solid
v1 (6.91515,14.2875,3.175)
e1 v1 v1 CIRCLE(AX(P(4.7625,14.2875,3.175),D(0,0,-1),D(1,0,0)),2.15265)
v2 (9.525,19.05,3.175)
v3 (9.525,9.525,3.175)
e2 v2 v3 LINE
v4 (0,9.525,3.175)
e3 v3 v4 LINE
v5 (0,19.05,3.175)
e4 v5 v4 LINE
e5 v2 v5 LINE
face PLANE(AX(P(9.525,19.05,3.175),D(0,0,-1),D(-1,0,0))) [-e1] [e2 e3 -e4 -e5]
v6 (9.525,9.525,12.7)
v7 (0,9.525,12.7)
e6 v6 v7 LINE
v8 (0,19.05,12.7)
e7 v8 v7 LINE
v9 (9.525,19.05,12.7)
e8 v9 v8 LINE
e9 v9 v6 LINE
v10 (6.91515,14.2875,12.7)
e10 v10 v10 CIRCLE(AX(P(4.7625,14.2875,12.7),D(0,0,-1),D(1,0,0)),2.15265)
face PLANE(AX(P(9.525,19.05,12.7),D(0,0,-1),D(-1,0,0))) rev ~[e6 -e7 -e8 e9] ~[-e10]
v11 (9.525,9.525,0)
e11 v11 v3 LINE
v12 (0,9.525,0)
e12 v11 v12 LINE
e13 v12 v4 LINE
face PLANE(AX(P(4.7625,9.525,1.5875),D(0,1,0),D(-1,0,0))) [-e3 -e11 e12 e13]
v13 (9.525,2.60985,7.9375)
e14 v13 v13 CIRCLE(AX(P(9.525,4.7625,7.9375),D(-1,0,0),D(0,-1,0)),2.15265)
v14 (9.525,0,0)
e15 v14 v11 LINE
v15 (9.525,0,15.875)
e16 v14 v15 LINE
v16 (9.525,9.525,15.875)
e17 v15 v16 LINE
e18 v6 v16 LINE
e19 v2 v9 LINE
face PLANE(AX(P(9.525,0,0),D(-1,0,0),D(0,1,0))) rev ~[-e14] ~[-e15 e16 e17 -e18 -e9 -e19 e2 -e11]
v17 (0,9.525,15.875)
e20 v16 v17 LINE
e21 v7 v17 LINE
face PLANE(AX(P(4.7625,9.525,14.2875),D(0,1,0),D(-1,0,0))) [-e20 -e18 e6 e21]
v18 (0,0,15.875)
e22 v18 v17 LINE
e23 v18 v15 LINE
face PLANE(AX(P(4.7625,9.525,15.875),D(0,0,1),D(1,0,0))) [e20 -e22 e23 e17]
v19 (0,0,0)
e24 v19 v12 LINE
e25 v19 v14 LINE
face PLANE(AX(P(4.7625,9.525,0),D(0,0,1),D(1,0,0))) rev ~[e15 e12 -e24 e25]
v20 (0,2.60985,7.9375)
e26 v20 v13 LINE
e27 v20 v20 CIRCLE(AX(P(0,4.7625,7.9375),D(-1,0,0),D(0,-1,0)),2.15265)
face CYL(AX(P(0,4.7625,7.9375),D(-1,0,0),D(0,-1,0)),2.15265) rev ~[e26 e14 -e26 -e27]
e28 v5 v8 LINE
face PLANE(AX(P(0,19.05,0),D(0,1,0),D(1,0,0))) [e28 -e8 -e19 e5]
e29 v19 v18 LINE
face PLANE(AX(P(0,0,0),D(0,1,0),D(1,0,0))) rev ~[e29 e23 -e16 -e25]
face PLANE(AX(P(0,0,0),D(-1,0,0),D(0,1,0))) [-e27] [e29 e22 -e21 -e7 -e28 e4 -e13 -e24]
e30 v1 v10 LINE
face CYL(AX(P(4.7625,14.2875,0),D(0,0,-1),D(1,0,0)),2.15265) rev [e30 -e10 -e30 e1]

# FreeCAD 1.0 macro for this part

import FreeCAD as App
import Part
import Sketcher
Q = App.Units.Quantity

doc = App.newDocument("Part")
body = doc.addObject("PartDesign::Body", "Body")

sketch1 = body.newObject("Sketcher::SketchObject", "Sketch")
sketch1.AttachmentSupport = (doc.getObject("XY_Plane"), [""])
sketch1.MapMode = "FlatFace"
sketch1.addGeometry([
    Part.LineSegment(App.Vector(0, 19.1, 0), App.Vector(0, 0, 0)),
    Part.LineSegment(App.Vector(0, 0, 0), App.Vector(9.5, 0, 0)),
    Part.LineSegment(App.Vector(9.5, 0, 0), App.Vector(9.5, 19.1, 0)),
    Part.LineSegment(App.Vector(9.5, 19.1, 0), App.Vector(0, 19.1, 0)),
    Part.Circle(App.Vector(4.8, 14.3, 0), App.Vector(0, 0, 1), 2.2),
], False)
sketch1.addConstraint([
    Sketcher.Constraint("Coincident", 0, 2, 1, 1),
    Sketcher.Constraint("Coincident", 1, 2, 2, 1),
    Sketcher.Constraint("Coincident", 2, 2, 3, 1),
    Sketcher.Constraint("Coincident", 3, 2, 0, 1),
    Sketcher.Constraint("Vertical", 0),
    Sketcher.Constraint("Horizontal", 1),
    Sketcher.Constraint("Vertical", 2),
    Sketcher.Constraint("Horizontal", 3),
    Sketcher.Constraint("Coincident", 0, 2, -1, 1),
    Sketcher.Constraint("Diameter", 4, Q("0.1695 in")),
    Sketcher.Constraint("DistanceY", 0, 2, 0, 1, Q("0.75 in")),
    Sketcher.Constraint("DistanceX", 1, 1, 1, 2, Q("0.375 in")),
    Sketcher.Constraint("DistanceX", -1, 1, 4, 3, Q("0.1875 in")),
    Sketcher.Constraint("DistanceY", -1, 1, 4, 3, Q("0.5625 in")),
])
pad1 = body.newObject("PartDesign::Pad", "Pad")
pad1.Profile = sketch1
pad1.Length = Q("0.625 in")

sketch2 = body.newObject("Sketcher::SketchObject", "Sketch001")
sketch2.AttachmentSupport = (doc.getObject("XZ_Plane"), [""])
sketch2.MapMode = "FlatFace"
sketch2.AttachmentOffset = App.Placement(App.Vector(0, 0, -0.75 * 25.4), App.Rotation())
sketch2.addGeometry([
    Part.LineSegment(App.Vector(9.5, 3.2, 0), App.Vector(9.5, 0, 0)),
    Part.LineSegment(App.Vector(9.5, 0, 0), App.Vector(0, 0, 0)),
    Part.LineSegment(App.Vector(0, 0, 0), App.Vector(0, 3.2, 0)),
    Part.LineSegment(App.Vector(0, 3.2, 0), App.Vector(9.5, 3.2, 0)),
    Part.LineSegment(App.Vector(9.5, 15.9, 0), App.Vector(9.5, 12.7, 0)),
    Part.LineSegment(App.Vector(9.5, 12.7, 0), App.Vector(0, 12.7, 0)),
    Part.LineSegment(App.Vector(0, 12.7, 0), App.Vector(0, 15.9, 0)),
    Part.LineSegment(App.Vector(0, 15.9, 0), App.Vector(9.5, 15.9, 0)),
], False)
sketch2.addConstraint([
    Sketcher.Constraint("Coincident", 0, 2, 1, 1),
    Sketcher.Constraint("Coincident", 1, 2, 2, 1),
    Sketcher.Constraint("Coincident", 2, 2, 3, 1),
    Sketcher.Constraint("Coincident", 3, 2, 0, 1),
    Sketcher.Constraint("Coincident", 4, 2, 5, 1),
    Sketcher.Constraint("Coincident", 5, 2, 6, 1),
    Sketcher.Constraint("Coincident", 6, 2, 7, 1),
    Sketcher.Constraint("Coincident", 7, 2, 4, 1),
    Sketcher.Constraint("Vertical", 0),
    Sketcher.Constraint("Horizontal", 1),
    Sketcher.Constraint("Vertical", 2),
    Sketcher.Constraint("Horizontal", 3),
    Sketcher.Constraint("Vertical", 4),
    Sketcher.Constraint("Horizontal", 5),
    Sketcher.Constraint("Vertical", 6),
    Sketcher.Constraint("Horizontal", 7),
    Sketcher.Constraint("Coincident", 1, 2, -1, 1),
    Sketcher.Constraint("PointOnObject", 5, 2, -2),
    Sketcher.Constraint("Vertical", 3, 2, 4, 2),
    Sketcher.Constraint("Equal", 2, 4),
    Sketcher.Constraint("DistanceY", -1, 1, 4, 2, Q("0.5 in")),
    Sketcher.Constraint("DistanceX", 1, 2, 1, 1, Q("0.375 in")),
    Sketcher.Constraint("DistanceY", 0, 2, 0, 1, Q("0.125 in")),
])
pocket1 = body.newObject("PartDesign::Pocket", "Pocket")
pocket1.Profile = sketch2
pocket1.Length = Q("0.375 in")
pocket1.Reversed = True

sketch3 = body.newObject("Sketcher::SketchObject", "Sketch002")
sketch3.AttachmentSupport = (doc.getObject("YZ_Plane"), [""])
sketch3.MapMode = "FlatFace"
sketch3.addGeometry(Part.Circle(App.Vector(4.8, 7.9, 0), App.Vector(0, 0, 1), 2.2), False)
sketch3.addConstraint([
    Sketcher.Constraint("Diameter", 0, Q("0.1695 in")),
    Sketcher.Constraint("DistanceX", -1, 1, 0, 3, Q("0.1875 in")),
    Sketcher.Constraint("DistanceY", -1, 1, 0, 3, Q("0.3125 in")),
])
pocket2 = body.newObject("PartDesign::Pocket", "Pocket001")
pocket2.Profile = sketch3
pocket2.Type = "ThroughAll"
pocket2.Reversed = True

doc.recompute()
